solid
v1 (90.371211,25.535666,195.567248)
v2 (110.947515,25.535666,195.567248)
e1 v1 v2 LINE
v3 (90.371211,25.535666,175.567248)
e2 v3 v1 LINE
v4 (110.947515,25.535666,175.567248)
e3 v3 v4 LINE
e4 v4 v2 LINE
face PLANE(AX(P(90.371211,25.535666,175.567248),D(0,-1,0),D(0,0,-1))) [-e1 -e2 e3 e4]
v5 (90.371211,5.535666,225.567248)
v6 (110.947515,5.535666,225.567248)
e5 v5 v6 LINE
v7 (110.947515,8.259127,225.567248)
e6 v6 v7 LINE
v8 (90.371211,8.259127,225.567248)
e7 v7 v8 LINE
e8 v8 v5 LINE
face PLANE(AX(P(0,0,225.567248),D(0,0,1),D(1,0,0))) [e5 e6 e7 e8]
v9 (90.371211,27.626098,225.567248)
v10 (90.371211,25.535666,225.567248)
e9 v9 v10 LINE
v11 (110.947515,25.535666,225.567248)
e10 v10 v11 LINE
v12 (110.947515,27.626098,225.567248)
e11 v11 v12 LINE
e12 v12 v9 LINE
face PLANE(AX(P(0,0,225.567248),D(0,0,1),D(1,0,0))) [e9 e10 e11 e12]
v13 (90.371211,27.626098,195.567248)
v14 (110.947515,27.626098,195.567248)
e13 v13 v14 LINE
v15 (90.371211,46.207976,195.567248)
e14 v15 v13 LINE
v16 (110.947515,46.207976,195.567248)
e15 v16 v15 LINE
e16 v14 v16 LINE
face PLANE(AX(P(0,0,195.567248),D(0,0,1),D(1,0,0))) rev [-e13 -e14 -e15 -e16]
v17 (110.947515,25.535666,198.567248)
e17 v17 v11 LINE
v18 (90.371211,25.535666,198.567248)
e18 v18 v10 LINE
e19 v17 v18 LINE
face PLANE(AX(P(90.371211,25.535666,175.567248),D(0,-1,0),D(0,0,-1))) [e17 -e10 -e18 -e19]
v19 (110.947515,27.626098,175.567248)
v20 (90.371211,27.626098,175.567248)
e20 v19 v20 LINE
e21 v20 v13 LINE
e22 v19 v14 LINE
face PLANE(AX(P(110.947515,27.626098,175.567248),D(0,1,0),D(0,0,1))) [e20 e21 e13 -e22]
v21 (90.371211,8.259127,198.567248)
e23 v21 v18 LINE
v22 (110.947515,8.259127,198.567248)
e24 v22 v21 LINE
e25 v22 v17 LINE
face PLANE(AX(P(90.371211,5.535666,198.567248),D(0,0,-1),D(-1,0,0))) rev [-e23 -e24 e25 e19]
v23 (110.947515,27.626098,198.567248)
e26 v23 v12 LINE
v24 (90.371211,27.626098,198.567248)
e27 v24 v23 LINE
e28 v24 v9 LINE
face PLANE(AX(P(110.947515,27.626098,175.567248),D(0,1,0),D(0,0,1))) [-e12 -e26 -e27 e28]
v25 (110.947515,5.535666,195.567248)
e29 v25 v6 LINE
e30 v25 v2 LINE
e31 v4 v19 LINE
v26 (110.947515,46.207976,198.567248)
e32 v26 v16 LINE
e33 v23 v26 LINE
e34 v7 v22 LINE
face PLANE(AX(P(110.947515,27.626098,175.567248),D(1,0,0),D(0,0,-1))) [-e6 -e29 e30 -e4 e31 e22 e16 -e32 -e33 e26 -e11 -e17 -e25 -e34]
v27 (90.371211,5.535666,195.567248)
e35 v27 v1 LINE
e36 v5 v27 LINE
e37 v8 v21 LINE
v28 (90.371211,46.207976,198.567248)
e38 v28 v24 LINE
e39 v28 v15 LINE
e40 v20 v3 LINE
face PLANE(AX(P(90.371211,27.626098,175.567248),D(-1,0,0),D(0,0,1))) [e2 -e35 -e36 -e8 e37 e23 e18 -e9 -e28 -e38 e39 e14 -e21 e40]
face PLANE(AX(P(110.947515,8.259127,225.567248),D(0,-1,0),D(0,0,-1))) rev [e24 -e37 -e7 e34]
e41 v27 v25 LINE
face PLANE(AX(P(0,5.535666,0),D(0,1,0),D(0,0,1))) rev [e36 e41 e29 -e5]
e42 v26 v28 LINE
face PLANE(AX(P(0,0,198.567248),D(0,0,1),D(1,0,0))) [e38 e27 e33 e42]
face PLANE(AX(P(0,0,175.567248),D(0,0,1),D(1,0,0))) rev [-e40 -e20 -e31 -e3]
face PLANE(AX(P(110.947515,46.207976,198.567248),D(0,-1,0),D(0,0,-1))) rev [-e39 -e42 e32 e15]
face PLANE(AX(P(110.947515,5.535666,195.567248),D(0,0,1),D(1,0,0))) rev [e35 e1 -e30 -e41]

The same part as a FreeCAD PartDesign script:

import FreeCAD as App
import Part
import Sketcher

V = App.Vector
Q = App.Units.Quantity


def add_polygon(sketch, points):
    """Adds a closed chain of lines whose ends are joined by coincident constraints."""
    first, n = sketch.GeometryCount, len(points)
    for a, b in zip(points, points[1:] + points[:1]):
        sketch.addGeometry(Part.LineSegment(App.Vector(*a, 0), App.Vector(*b, 0)), False)
    for i in range(n):
        sketch.addConstraint(Sketcher.Constraint("Coincident", first + i, 2, first + (i + 1) % n, 1))

doc = App.newDocument("Part")
body = doc.addObject("PartDesign::Body", "Body")

# Sketch on XY plane
sketch1 = body.newObject("Sketcher::SketchObject", "Sketch")
sketch1.AttachmentSupport = (doc.getObject("XY_Plane"), [""])
sketch1.MapMode = "FlatFace"
sketch1.AttachmentOffset = App.Placement(V(0, 0, 195.567248), App.Rotation())
add_polygon(sketch1, [(90.4, 27.6), (90.4, 25.5), (110.9, 25.5), (110.9, 27.6)])  # lines 0-3
sketch1.addConstraint([
    Sketcher.Constraint("Vertical", 0),
    Sketcher.Constraint("Horizontal", 1),
    Sketcher.Constraint("Vertical", 2),
    Sketcher.Constraint("Horizontal", 3),
    Sketcher.Constraint("DistanceY", 0, 2, 0, 1, Q("2.090432 mm")),
    Sketcher.Constraint("DistanceY", -1, 1, 2, 2, Q("27.626098 mm")),
    Sketcher.Constraint("DistanceX", 1, 1, 1, 2, Q("20.576304 mm")),
    Sketcher.Constraint("DistanceX", -1, 1, 0, 2, Q("90.371211 mm")),
])
pad1 = body.newObject("PartDesign::Pad", "Pad")
pad1.Profile = sketch1
pad1.Type = "TwoLengths"
pad1.Length = 30
pad1.Length2 = 20

# Sketch on XY plane
sketch2 = body.newObject("Sketcher::SketchObject", "Sketch001")
sketch2.AttachmentSupport = (doc.getObject("XY_Plane"), [""])
sketch2.MapMode = "FlatFace"
sketch2.AttachmentOffset = App.Placement(V(0, 0, 195.567248), App.Rotation())
add_polygon(sketch2, [(90, 46), (90, 28), (111, 28), (111, 46)])  # lines 0-3
sketch2.addConstraint([
    Sketcher.Constraint("Vertical", 0),
    Sketcher.Constraint("Horizontal", 1),
    Sketcher.Constraint("Vertical", 2),
    Sketcher.Constraint("Horizontal", 3),
    Sketcher.Constraint("DistanceY", -1, 1, 0, 2, Q("27.626098 mm")),
    Sketcher.Constraint("DistanceX", 1, 1, 1, 2, Q("20.576304 mm")),
    Sketcher.Constraint("DistanceY", 0, 2, 0, 1, Q("18.581878 mm")),
    Sketcher.Constraint("DistanceX", -1, 1, 0, 2, Q("90.371211 mm")),
])
pad2 = body.newObject("PartDesign::Pad", "Pad001")
pad2.Profile = sketch2
pad2.Length = 3

# Sketch on XZ plane
sketch3 = body.newObject("Sketcher::SketchObject", "Sketch002")
sketch3.AttachmentSupport = (doc.getObject("XZ_Plane"), [""])
sketch3.MapMode = "FlatFace"
sketch3.AttachmentOffset = App.Placement(V(0, 0, -25.535666), App.Rotation())
add_polygon(sketch3, [(90.4, 198.6), (90.4, 195.6), (110.9, 195.6), (110.9, 198.6)])  # lines 0-3
sketch3.addConstraint([
    Sketcher.Constraint("Vertical", 0),
    Sketcher.Constraint("Horizontal", 1),
    Sketcher.Constraint("Vertical", 2),
    Sketcher.Constraint("Horizontal", 3),
    Sketcher.Constraint("DistanceY", 0, 2, 0, 1, Q("3 mm")),
    Sketcher.Constraint("DistanceX", 1, 1, 1, 2, Q("20.576304 mm")),
    Sketcher.Constraint("DistanceX", -1, 1, 0, 2, Q("90.371211 mm")),
    Sketcher.Constraint("DistanceY", -1, 1, 0, 2, Q("195.567248 mm")),
])
pad3 = body.newObject("PartDesign::Pad", "Pad002")
pad3.Profile = sketch3
pad3.Length = 20

# Sketch on XY plane
sketch4 = body.newObject("Sketcher::SketchObject", "Sketch003")
sketch4.AttachmentSupport = (doc.getObject("XY_Plane"), [""])
sketch4.MapMode = "FlatFace"
sketch4.AttachmentOffset = App.Placement(V(0, 0, 198.567248), App.Rotation())
add_polygon(sketch4, [(90.4, 8.3), (90.4, 5.5), (110.9, 5.5), (110.9, 8.3)])  # lines 0-3
sketch4.addConstraint([
    Sketcher.Constraint("Vertical", 0),
    Sketcher.Constraint("Horizontal", 1),
    Sketcher.Constraint("Vertical", 2),
    Sketcher.Constraint("Horizontal", 3),
    Sketcher.Constraint("DistanceY", 0, 2, 0, 1, Q("2.72346 mm")),
    Sketcher.Constraint("DistanceX", 1, 1, 1, 2, Q("20.576304 mm")),
    Sketcher.Constraint("DistanceX", -1, 1, 0, 2, Q("90.371211 mm")),
    Sketcher.Constraint("DistanceY", -1, 1, 0, 2, Q("5.535666 mm")),
])
pad4 = body.newObject("PartDesign::Pad", "Pad003")
pad4.Profile = sketch4
pad4.Length = 27

doc.recompute()
